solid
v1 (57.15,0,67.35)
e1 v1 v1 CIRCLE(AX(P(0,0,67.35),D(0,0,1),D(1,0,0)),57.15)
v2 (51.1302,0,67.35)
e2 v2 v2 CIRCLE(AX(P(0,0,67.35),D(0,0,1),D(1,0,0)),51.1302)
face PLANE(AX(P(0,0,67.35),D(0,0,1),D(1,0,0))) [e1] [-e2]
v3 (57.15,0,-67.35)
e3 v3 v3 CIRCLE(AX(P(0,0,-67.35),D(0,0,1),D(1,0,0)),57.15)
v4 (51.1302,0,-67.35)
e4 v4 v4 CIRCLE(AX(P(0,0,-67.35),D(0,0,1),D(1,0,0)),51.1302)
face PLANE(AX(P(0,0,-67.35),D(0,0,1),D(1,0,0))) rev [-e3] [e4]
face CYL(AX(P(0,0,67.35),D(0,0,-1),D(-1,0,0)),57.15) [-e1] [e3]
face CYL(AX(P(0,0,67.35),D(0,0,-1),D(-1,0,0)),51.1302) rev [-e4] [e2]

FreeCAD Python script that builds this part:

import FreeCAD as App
import Part
import Sketcher

V = App.Vector
Q = App.Units.Quantity

doc = App.newDocument("Part")
body = doc.addObject("PartDesign::Body", "Body")

sketch1 = doc.addObject("Sketcher::SketchObject", "Sketch")
body.addObject(sketch1)
sketch1.AttachmentSupport = (doc.XY_Plane, [""])
sketch1.MapMode = "FlatFace"
sketch1.addGeometry([
    Part.Circle(V(0, 0, 0), V(0, 0, 1), 57.15),
    Part.Circle(V(0, 0, 0), V(0, 0, 1), 51.1302),
], False)
sketch1.addConstraint([
    Sketcher.Constraint("Coincident", 0, 3, -1, 1),
    Sketcher.Constraint("Coincident", 1, 3, -1, 1),
    Sketcher.Constraint("Diameter", 0, Q("4.5 in")),
    Sketcher.Constraint("Diameter", 1, Q("4.026 in")),
])
pad1 = doc.addObject("PartDesign::Pad", "Pad")
body.addObject(pad1)
pad1.Profile = sketch1
pad1.Length = 134.7
pad1.Midplane = True

doc.recompute()
